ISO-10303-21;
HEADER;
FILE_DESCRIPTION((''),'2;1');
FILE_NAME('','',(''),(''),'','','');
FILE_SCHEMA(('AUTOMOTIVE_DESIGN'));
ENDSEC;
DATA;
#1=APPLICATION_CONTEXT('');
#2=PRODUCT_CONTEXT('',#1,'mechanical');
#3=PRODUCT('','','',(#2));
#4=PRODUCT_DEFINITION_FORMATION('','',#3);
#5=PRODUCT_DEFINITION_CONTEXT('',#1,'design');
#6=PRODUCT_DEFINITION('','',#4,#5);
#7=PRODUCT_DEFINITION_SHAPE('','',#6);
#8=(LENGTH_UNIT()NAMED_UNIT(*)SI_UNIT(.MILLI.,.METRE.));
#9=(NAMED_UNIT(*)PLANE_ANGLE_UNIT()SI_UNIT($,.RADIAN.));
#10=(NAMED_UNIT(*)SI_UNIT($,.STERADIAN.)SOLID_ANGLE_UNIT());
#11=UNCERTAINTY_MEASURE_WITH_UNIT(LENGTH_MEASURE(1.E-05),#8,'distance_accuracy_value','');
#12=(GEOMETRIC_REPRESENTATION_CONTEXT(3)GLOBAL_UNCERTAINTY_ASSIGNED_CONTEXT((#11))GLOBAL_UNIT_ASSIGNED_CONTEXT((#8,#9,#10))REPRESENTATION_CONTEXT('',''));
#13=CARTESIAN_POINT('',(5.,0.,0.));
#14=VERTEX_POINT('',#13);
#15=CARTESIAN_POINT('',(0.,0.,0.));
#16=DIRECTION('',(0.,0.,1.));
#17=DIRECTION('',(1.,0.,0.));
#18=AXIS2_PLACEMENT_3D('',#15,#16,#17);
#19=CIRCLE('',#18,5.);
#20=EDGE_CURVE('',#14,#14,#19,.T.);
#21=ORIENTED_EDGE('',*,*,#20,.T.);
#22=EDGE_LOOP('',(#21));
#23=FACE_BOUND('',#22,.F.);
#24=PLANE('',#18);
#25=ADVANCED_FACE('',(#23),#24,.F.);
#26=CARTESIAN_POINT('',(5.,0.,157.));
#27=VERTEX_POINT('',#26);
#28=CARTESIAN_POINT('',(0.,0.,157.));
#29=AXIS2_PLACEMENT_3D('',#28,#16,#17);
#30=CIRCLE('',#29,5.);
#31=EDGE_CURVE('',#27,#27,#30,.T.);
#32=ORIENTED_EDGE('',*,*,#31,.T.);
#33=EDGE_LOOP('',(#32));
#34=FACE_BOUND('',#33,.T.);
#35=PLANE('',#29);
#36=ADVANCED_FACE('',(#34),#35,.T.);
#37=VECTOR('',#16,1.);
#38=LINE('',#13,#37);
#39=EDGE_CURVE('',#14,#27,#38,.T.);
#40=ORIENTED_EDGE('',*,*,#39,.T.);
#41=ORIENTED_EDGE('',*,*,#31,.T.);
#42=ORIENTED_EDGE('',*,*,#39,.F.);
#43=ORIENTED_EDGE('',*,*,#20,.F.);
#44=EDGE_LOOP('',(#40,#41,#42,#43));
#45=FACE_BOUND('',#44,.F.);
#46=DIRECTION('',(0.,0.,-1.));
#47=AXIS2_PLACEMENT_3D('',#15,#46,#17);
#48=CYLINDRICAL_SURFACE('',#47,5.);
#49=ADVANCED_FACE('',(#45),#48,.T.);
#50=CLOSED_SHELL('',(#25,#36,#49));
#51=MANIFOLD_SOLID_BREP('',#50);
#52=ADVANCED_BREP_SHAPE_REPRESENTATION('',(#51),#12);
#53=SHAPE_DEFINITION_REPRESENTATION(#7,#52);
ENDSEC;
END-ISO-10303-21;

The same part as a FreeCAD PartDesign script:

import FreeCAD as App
import Part
import Sketcher
from FreeCAD import Vector

doc = App.newDocument("Part")
body = doc.addObject("PartDesign::Body", "Body")

sketch1 = body.newObject("Sketcher::SketchObject", "Sketch")
sketch1.AttachmentSupport = (doc.getObject("XY_Plane"), [""])
sketch1.MapMode = "FlatFace"
sketch1.addGeometry(Part.Circle(Vector(0, 0, 0), Vector(0, 0, 1), 5), False)
sketch1.addConstraint(Sketcher.Constraint("Coincident", 0, 3, -1, 1))
sketch1.addConstraint(Sketcher.Constraint("Diameter", 0, 10.0))
pad1 = body.newObject("PartDesign::Pad", "Pad")
pad1.Profile = sketch1
pad1.Length = 157

doc.recompute()
